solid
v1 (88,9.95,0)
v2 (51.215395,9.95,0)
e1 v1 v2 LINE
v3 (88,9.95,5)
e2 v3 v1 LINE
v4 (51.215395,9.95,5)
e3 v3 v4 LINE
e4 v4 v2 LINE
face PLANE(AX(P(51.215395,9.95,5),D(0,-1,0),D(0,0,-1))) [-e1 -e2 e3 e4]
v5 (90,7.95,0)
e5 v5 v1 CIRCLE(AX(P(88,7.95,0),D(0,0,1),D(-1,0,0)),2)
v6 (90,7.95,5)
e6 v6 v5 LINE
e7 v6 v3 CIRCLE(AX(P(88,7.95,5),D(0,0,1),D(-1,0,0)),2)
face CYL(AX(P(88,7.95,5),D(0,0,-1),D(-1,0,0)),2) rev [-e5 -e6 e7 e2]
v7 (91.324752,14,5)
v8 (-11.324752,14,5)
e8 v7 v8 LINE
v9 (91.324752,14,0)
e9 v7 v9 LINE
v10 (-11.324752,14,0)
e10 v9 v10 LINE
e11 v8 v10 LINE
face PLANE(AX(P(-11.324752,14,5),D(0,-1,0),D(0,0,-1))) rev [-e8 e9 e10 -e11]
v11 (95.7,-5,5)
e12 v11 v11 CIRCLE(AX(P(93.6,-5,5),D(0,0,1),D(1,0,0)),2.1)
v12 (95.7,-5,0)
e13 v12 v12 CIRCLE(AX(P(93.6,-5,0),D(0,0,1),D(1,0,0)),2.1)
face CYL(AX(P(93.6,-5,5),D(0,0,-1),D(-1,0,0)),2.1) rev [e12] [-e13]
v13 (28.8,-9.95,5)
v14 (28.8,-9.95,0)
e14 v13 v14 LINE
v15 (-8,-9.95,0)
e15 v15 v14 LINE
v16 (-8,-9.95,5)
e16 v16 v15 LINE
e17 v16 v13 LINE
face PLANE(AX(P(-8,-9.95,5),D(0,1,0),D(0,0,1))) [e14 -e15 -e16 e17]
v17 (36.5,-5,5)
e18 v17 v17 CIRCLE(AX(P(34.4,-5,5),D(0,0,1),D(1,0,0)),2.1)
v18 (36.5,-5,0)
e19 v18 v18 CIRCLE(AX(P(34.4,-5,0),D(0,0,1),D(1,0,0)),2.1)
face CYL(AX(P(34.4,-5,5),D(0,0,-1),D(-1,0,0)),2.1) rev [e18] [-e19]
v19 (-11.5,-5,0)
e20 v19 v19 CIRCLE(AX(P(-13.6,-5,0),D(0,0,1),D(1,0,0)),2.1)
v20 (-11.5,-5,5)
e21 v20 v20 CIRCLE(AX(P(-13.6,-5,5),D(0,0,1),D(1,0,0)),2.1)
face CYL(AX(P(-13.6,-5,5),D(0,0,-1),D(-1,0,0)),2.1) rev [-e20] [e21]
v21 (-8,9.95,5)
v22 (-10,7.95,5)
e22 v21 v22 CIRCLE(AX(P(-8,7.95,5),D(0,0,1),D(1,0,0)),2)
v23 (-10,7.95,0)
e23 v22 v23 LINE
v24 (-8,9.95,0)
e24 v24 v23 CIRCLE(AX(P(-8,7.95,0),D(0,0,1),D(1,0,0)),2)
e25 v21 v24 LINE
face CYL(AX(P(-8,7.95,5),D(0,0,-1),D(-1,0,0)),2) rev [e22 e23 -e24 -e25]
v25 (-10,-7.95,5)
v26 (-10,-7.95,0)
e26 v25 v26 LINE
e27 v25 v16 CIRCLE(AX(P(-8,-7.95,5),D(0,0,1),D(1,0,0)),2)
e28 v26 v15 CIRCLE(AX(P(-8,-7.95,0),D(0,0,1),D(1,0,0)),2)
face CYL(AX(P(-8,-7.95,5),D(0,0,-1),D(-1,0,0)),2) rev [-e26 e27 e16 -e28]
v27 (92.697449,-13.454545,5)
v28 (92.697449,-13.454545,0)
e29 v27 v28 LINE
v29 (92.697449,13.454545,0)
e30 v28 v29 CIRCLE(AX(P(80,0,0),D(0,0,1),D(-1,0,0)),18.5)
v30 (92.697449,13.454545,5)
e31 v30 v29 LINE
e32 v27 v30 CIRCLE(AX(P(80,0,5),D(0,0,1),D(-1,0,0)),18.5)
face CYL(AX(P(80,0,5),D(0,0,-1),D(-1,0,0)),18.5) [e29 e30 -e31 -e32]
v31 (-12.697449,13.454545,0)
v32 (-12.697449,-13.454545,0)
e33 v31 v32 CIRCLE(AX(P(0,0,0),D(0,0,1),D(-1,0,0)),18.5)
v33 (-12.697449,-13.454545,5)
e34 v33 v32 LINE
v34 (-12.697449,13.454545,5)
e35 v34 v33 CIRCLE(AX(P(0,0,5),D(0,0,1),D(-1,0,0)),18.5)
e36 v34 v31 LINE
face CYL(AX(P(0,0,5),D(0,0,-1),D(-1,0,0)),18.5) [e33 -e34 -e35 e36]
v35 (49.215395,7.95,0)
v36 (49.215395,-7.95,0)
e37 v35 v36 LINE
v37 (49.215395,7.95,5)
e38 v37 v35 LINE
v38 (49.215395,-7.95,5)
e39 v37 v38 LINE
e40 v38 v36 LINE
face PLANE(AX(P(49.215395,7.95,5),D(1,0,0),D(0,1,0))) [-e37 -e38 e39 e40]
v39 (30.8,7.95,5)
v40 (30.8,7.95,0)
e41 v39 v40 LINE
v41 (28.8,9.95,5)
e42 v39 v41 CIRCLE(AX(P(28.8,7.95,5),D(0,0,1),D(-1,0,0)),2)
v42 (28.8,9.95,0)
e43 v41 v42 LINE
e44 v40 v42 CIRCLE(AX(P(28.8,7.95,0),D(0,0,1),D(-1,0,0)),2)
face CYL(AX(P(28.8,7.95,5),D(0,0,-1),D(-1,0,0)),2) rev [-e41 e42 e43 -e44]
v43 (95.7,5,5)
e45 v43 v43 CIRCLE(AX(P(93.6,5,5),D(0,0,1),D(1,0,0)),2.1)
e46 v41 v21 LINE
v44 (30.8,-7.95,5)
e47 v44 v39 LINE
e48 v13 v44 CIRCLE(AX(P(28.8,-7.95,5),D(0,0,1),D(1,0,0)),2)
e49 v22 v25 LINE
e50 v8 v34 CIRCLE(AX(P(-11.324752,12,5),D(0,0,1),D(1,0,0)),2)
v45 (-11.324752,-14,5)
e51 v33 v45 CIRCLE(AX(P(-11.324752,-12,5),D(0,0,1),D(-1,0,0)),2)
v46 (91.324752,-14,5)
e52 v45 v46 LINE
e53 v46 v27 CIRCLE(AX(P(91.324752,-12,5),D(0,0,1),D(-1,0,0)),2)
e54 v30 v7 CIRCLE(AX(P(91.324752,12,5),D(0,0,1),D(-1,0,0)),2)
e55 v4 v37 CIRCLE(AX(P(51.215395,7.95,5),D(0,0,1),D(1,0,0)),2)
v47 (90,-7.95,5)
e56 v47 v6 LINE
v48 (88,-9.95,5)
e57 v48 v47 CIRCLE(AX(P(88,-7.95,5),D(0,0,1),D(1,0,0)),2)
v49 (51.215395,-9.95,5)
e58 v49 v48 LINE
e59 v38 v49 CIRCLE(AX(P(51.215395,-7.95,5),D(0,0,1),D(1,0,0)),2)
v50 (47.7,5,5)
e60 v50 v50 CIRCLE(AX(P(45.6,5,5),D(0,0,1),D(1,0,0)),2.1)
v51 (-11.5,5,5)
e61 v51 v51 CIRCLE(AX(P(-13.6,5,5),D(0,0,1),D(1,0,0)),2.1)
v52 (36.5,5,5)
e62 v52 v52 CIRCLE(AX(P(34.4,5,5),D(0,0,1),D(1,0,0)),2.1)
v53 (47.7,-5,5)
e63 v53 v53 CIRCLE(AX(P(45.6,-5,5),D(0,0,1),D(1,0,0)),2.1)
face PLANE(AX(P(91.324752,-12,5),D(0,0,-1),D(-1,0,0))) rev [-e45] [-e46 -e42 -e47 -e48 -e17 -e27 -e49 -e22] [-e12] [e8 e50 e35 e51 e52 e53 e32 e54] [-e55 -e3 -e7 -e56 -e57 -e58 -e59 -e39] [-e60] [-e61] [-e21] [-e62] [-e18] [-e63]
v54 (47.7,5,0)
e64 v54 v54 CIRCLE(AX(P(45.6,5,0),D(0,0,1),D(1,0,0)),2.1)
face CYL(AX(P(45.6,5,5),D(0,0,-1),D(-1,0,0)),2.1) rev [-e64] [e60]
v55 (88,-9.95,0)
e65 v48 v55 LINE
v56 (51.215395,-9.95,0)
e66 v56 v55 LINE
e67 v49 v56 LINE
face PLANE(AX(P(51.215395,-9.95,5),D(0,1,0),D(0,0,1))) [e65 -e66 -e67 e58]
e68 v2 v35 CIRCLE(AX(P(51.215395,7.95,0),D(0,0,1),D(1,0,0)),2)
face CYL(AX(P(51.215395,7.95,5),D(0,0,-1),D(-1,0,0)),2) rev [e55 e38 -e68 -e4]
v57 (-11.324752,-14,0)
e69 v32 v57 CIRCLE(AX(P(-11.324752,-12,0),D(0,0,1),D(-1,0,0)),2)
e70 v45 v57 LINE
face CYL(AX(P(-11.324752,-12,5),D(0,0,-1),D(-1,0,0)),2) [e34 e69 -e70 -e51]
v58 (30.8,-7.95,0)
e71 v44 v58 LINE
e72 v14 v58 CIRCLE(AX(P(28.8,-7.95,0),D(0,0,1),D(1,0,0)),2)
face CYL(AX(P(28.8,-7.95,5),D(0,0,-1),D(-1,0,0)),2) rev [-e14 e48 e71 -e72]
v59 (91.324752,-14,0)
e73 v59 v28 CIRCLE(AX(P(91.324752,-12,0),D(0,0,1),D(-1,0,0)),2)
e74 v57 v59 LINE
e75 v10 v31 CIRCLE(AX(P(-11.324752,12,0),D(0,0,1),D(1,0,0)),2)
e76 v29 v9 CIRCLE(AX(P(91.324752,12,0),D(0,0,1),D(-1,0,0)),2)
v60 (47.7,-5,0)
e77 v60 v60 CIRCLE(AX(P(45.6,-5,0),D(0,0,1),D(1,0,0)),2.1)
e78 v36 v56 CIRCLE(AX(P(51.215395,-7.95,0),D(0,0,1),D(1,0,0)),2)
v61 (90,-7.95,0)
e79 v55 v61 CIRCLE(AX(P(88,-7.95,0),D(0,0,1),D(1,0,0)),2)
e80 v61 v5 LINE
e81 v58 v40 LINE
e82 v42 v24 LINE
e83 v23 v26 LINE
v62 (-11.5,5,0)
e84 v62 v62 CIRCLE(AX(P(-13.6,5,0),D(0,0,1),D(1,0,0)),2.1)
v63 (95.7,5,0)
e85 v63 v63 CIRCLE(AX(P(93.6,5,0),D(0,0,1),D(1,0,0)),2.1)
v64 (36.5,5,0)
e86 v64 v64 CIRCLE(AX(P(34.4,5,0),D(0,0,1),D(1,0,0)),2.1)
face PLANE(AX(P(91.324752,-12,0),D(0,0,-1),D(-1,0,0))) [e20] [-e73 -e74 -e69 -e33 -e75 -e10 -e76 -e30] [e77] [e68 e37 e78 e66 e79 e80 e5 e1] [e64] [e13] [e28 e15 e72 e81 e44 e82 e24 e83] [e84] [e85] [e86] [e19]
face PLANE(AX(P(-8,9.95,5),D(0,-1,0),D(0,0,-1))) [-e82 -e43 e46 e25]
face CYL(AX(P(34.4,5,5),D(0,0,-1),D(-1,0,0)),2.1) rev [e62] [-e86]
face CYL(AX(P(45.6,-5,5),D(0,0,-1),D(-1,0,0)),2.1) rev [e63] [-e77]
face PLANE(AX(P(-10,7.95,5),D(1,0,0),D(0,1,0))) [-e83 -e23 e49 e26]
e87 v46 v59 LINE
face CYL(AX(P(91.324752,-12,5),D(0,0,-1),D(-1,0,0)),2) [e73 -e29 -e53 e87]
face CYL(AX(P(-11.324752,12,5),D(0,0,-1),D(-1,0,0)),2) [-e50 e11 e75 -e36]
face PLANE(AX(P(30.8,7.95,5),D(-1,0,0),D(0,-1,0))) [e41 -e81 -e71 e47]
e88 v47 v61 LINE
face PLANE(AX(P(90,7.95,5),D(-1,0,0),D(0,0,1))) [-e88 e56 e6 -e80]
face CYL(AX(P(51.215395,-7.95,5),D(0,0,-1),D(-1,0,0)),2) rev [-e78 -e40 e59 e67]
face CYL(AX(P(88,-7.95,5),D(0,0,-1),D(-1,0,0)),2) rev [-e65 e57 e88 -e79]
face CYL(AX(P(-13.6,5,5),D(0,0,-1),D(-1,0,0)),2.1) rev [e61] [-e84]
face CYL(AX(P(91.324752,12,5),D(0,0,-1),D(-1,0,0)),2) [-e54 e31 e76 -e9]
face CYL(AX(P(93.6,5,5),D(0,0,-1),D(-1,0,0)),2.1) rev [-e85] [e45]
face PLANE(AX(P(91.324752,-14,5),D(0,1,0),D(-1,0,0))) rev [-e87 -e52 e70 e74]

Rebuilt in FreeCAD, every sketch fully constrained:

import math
import FreeCAD as App
import Part
import Sketcher
from FreeCAD import Vector
Q = App.Units.Quantity

doc = App.newDocument("Part")
body = doc.addObject("PartDesign::Body", "Body")

# Sketch on XY plane
sketch1 = doc.addObject("Sketcher::SketchObject", "Sketch")
body.addObject(sketch1)
sketch1.AttachmentSupport = (doc.XY_Plane, [""])
sketch1.MapMode = "FlatFace"
sketch1.addGeometry([
    Part.LineSegment(Vector(91.3, 14, 0), Vector(-11.3, 14, 0)),  # 0
    Part.ArcOfCircle(Part.Circle(Vector(-11.3, 12, 0), Vector(0, 0, 1), 2), math.radians(90), math.radians(133)),  # 1
    Part.ArcOfCircle(Part.Circle(Vector(0, 0, 0), Vector(0, 0, 1), 18.5), math.radians(133), math.radians(227)),  # 2
    Part.ArcOfCircle(Part.Circle(Vector(-11.3, -12, 0), Vector(0, 0, 1), 2), math.radians(-133), math.radians(-90)),  # 3
    Part.LineSegment(Vector(-11.3, -14, 0), Vector(91.3, -14, 0)),  # 4
    Part.ArcOfCircle(Part.Circle(Vector(91.3, -12, 0), Vector(0, 0, 1), 2), math.radians(-90), math.radians(-47)),  # 5
    Part.ArcOfCircle(Part.Circle(Vector(80, 0, 0), Vector(0, 0, 1), 18.5), math.radians(-47), math.radians(47)),  # 6
    Part.ArcOfCircle(Part.Circle(Vector(91.3, 12, 0), Vector(0, 0, 1), 2), math.radians(47), math.radians(90)),  # 7
    Part.LineSegment(Vector(51.2, 9.9, 0), Vector(88, 9.9, 0)),  # 8
    Part.ArcOfCircle(Part.Circle(Vector(88, 7.9, 0), Vector(0, 0, 1), 2), math.radians(0), math.radians(90)),  # 9
    Part.LineSegment(Vector(90, 8, 0), Vector(90, -8, 0)),  # 10
    Part.ArcOfCircle(Part.Circle(Vector(88, -7.9, 0), Vector(0, 0, 1), 2), math.radians(-90), math.radians(0)),  # 11
    Part.LineSegment(Vector(88, -9.9, 0), Vector(51.2, -9.9, 0)),  # 12
    Part.ArcOfCircle(Part.Circle(Vector(51.2, -8, 0), Vector(0, 0, 1), 2), math.radians(180), math.radians(270)),  # 13
    Part.LineSegment(Vector(49.2, -8, 0), Vector(49.2, 8, 0)),  # 14
    Part.ArcOfCircle(Part.Circle(Vector(51.2, 8, 0), Vector(0, 0, 1), 2), math.radians(90), math.radians(180)),  # 15
    Part.LineSegment(Vector(-8, 9.9, 0), Vector(28.8, 9.9, 0)),  # 16
    Part.ArcOfCircle(Part.Circle(Vector(28.8, 7.9, 0), Vector(0, 0, 1), 2), math.radians(0), math.radians(90)),  # 17
    Part.LineSegment(Vector(30.8, 8, 0), Vector(30.8, -8, 0)),  # 18
    Part.ArcOfCircle(Part.Circle(Vector(28.8, -7.9, 0), Vector(0, 0, 1), 2), math.radians(-90), math.radians(0)),  # 19
    Part.LineSegment(Vector(28.8, -9.9, 0), Vector(-8, -9.9, 0)),  # 20
    Part.ArcOfCircle(Part.Circle(Vector(-8, -7.9, 0), Vector(0, 0, 1), 2), math.radians(-180), math.radians(-90)),  # 21
    Part.LineSegment(Vector(-10, -8, 0), Vector(-10, 8, 0)),  # 22
    Part.ArcOfCircle(Part.Circle(Vector(-8, 7.9, 0), Vector(0, 0, 1), 2), math.radians(90), math.radians(180)),  # 23
], False)
sketch1.addConstraint([
    Sketcher.Constraint("Tangent", 0, 2, 1, 1),
    Sketcher.Constraint("Tangent", 1, 2, 2, 1),
    Sketcher.Constraint("Tangent", 2, 2, 3, 1),
    Sketcher.Constraint("Tangent", 3, 2, 4, 1),
    Sketcher.Constraint("Tangent", 4, 2, 5, 1),
    Sketcher.Constraint("Tangent", 5, 2, 6, 1),
    Sketcher.Constraint("Tangent", 6, 2, 7, 1),
    Sketcher.Constraint("Tangent", 7, 2, 0, 1),
    Sketcher.Constraint("Tangent", 8, 2, 9, 2),
    Sketcher.Constraint("Tangent", 9, 1, 10, 1),
    Sketcher.Constraint("Tangent", 10, 2, 11, 2),
    Sketcher.Constraint("Tangent", 11, 1, 12, 1),
    Sketcher.Constraint("Tangent", 12, 2, 13, 2),
    Sketcher.Constraint("Tangent", 13, 1, 14, 1),
    Sketcher.Constraint("Tangent", 14, 2, 15, 2),
    Sketcher.Constraint("Tangent", 15, 1, 8, 1),
    Sketcher.Constraint("Tangent", 16, 2, 17, 2),
    Sketcher.Constraint("Tangent", 17, 1, 18, 1),
    Sketcher.Constraint("Tangent", 18, 2, 19, 2),
    Sketcher.Constraint("Tangent", 19, 1, 20, 1),
    Sketcher.Constraint("Tangent", 20, 2, 21, 2),
    Sketcher.Constraint("Tangent", 21, 1, 22, 1),
    Sketcher.Constraint("Tangent", 22, 2, 23, 2),
    Sketcher.Constraint("Tangent", 23, 1, 16, 1),
    Sketcher.Constraint("Horizontal", 0),
    Sketcher.Constraint("Horizontal", 4),
    Sketcher.Constraint("Horizontal", 8),
    Sketcher.Constraint("Vertical", 10),
    Sketcher.Constraint("Horizontal", 12),
    Sketcher.Constraint("Vertical", 14),
    Sketcher.Constraint("Horizontal", 16),
    Sketcher.Constraint("Vertical", 18),
    Sketcher.Constraint("Horizontal", 20),
    Sketcher.Constraint("Vertical", 22),
    Sketcher.Constraint("Coincident", 2, 3, -1, 1),
    Sketcher.Constraint("Equal", 1, 3),
    Sketcher.Constraint("Equal", 3, 5),
    Sketcher.Constraint("Equal", 2, 6),
    Sketcher.Constraint("Equal", 5, 7),
    Sketcher.Constraint("Equal", 7, 9),
    Sketcher.Constraint("Equal", 9, 11),
    Sketcher.Constraint("Equal", 11, 13),
    Sketcher.Constraint("Equal", 13, 15),
    Sketcher.Constraint("Equal", 15, 17),
    Sketcher.Constraint("Equal", 17, 19),
    Sketcher.Constraint("Equal", 19, 21),
    Sketcher.Constraint("Equal", 21, 23),
    Sketcher.Constraint("Symmetric", 5, 3, 7, 3, -1),
    Sketcher.Constraint("Horizontal", 15, 3, 17, 3),
    Sketcher.Constraint("Horizontal", 13, 3, 19, 3),
    Sketcher.Constraint("Radius", 1, Q("2 mm")),
    Sketcher.Constraint("Radius", 2, Q("18.5 mm")),
    Sketcher.Constraint("DistanceX", 16, 1, 16, 2, Q("36.8 mm")),
    Sketcher.Constraint("DistanceY", 10, 2, 10, 1, Q("15.9 mm")),
    Sketcher.Constraint("DistanceY", -1, 1, 1, 3, Q("12 mm")),
    Sketcher.Constraint("DistanceX", -1, 1, 6, 3, Q("80 mm")),
    Sketcher.Constraint("DistanceX", -1, 1, 9, 3, Q("88 mm")),
    Sketcher.Constraint("DistanceX", 21, 3, -1, 1, Q("8 mm")),
    Sketcher.Constraint("DistanceY", -1, 1, 9, 3, Q("7.95 mm")),
    Sketcher.Constraint("DistanceX", 8, 1, 8, 2, Q("36.784605 mm")),
])
pad1 = doc.addObject("PartDesign::Pad", "Pad")
body.addObject(pad1)
pad1.Profile = sketch1
pad1.Length = 5

# Sketch on XY plane
sketch2 = doc.addObject("Sketcher::SketchObject", "Sketch001")
body.addObject(sketch2)
sketch2.AttachmentSupport = (doc.XY_Plane, [""])
sketch2.MapMode = "FlatFace"
sketch2.addGeometry([
    Part.Circle(Vector(-13.6, 5, 0), Vector(0, 0, 1), 2.1),  # 0
    Part.Circle(Vector(45.6, -5, 0), Vector(0, 0, 1), 2.1),  # 1
    Part.Circle(Vector(34.4, 5, 0), Vector(0, 0, 1), 2.1),  # 2
    Part.Circle(Vector(-13.6, -5, 0), Vector(0, 0, 1), 2.1),  # 3
    Part.Circle(Vector(93.6, 5, 0), Vector(0, 0, 1), 2.1),  # 4
    Part.Circle(Vector(93.6, -5, 0), Vector(0, 0, 1), 2.1),  # 5
    Part.Circle(Vector(45.6, 5, 0), Vector(0, 0, 1), 2.1),  # 6
    Part.Circle(Vector(34.4, -5, 0), Vector(0, 0, 1), 2.1),  # 7
], False)
sketch2.addConstraint([
    Sketcher.Constraint("Equal", 0, 1),
    Sketcher.Constraint("Equal", 1, 2),
    Sketcher.Constraint("Equal", 2, 3),
    Sketcher.Constraint("Equal", 3, 4),
    Sketcher.Constraint("Equal", 4, 5),
    Sketcher.Constraint("Equal", 5, 6),
    Sketcher.Constraint("Equal", 6, 7),
    Sketcher.Constraint("Symmetric", 0, 3, 3, 3, -1),
    Sketcher.Constraint("Symmetric", 4, 3, 5, 3, -1),
    Sketcher.Constraint("Symmetric", 1, 3, 6, 3, -1),
    Sketcher.Constraint("Symmetric", 2, 3, 7, 3, -1),
    Sketcher.Constraint("Horizontal", 0, 3, 2, 3),
    Sketcher.Constraint("Horizontal", 1, 3, 3, 3),
    Sketcher.Constraint("Horizontal", 2, 3, 4, 3),
    Sketcher.Constraint("Diameter", 0, Q("4.2 mm")),
    Sketcher.Constraint("DistanceY", -1, 1, 0, 3, Q("5 mm")),
    Sketcher.Constraint("DistanceX", 0, 3, 2, 3, Q("48 mm")),
    Sketcher.Constraint("DistanceX", 1, 3, 4, 3, Q("48 mm")),
    Sketcher.Constraint("DistanceX", 0, 3, -1, 1, Q("13.6 mm")),
    Sketcher.Constraint("DistanceX", -1, 1, 1, 3, Q("45.6 mm")),
])
pocket1 = doc.addObject("PartDesign::Pocket", "Pocket")
body.addObject(pocket1)
pocket1.Profile = sketch2
pocket1.Type = "ThroughAll"
pocket1.Reversed = True

doc.recompute()
